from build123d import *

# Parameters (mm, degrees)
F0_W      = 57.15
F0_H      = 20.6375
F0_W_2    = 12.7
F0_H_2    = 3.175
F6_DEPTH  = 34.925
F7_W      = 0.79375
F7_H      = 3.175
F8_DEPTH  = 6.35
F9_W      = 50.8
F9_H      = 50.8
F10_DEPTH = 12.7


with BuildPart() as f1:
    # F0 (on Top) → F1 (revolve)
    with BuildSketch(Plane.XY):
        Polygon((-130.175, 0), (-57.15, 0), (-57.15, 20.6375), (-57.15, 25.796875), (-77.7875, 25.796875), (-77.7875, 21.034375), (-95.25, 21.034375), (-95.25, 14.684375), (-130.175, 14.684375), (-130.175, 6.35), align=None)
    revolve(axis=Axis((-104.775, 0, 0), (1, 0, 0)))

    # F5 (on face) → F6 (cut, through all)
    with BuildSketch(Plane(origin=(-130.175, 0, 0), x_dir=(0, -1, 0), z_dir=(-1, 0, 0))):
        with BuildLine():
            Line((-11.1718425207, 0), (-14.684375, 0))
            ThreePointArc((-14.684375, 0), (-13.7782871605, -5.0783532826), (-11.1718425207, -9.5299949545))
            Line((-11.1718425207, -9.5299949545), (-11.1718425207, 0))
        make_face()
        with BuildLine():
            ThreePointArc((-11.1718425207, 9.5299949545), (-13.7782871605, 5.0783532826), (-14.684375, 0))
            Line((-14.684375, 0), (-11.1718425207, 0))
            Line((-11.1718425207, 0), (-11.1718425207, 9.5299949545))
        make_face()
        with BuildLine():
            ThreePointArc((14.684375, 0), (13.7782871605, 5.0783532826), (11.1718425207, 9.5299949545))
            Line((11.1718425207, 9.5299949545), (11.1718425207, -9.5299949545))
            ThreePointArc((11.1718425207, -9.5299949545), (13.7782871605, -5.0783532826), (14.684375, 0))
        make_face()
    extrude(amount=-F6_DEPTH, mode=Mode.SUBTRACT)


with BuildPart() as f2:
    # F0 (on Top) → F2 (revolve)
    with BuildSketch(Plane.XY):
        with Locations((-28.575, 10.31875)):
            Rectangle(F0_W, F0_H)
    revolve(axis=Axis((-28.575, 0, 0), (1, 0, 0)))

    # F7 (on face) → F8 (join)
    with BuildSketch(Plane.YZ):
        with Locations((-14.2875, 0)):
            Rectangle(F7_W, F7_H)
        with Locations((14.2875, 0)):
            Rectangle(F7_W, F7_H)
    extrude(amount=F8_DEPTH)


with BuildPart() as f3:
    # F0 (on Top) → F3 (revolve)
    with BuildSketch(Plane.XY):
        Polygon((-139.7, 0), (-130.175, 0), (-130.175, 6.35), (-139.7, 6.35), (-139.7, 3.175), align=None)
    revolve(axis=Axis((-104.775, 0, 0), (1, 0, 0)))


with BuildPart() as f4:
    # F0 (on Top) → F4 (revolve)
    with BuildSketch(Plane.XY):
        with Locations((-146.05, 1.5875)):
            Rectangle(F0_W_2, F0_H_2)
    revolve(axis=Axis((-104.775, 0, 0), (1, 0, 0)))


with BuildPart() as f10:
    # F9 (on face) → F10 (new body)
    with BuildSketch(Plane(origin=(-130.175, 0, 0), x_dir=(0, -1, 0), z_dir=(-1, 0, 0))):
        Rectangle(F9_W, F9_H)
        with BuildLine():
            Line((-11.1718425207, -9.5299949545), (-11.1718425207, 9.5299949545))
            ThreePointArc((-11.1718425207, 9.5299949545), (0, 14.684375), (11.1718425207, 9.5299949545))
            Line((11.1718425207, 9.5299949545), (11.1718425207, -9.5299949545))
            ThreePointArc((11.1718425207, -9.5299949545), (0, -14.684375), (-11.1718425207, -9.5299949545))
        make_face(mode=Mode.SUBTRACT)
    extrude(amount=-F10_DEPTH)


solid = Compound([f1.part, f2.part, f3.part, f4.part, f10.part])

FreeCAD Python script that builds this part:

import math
import FreeCAD as App
import Part
import Sketcher
from FreeCAD import Vector
Q = App.Units.Quantity

doc = App.newDocument("Part")
body = doc.addObject("PartDesign::Body", "Body")

sketch1 = body.newObject("Sketcher::SketchObject", "Sketch")
sketch1.AttachmentSupport = (doc.getObject("XY_Plane"), [""])
sketch1.MapMode = "FlatFace"
sketch1.addGeometry(Part.LineSegment(Vector(-130.2, 0, 0), Vector(-57.1, 0, 0)), False)
sketch1.addGeometry(Part.LineSegment(Vector(-57.1, 0, 0), Vector(-57.1, 25.8, 0)), False)
sketch1.addGeometry(Part.LineSegment(Vector(-57.1, 25.8, 0), Vector(-77.8, 25.8, 0)), False)
sketch1.addGeometry(Part.LineSegment(Vector(-77.8, 25.8, 0), Vector(-77.8, 21, 0)), False)
sketch1.addGeometry(Part.LineSegment(Vector(-77.8, 21, 0), Vector(-95.2, 21, 0)), False)
sketch1.addGeometry(Part.LineSegment(Vector(-95.2, 21, 0), Vector(-95.2, 14.7, 0)), False)
sketch1.addGeometry(Part.LineSegment(Vector(-95.2, 14.7, 0), Vector(-130.2, 14.7, 0)), False)
sketch1.addGeometry(Part.LineSegment(Vector(-130.2, 14.7, 0), Vector(-130.2, 0, 0)), False)
sketch1.addConstraint(Sketcher.Constraint("Coincident", 0, 2, 1, 1))
sketch1.addConstraint(Sketcher.Constraint("Coincident", 1, 2, 2, 1))
sketch1.addConstraint(Sketcher.Constraint("Coincident", 2, 2, 3, 1))
sketch1.addConstraint(Sketcher.Constraint("Coincident", 3, 2, 4, 1))
sketch1.addConstraint(Sketcher.Constraint("Coincident", 4, 2, 5, 1))
sketch1.addConstraint(Sketcher.Constraint("Coincident", 5, 2, 6, 1))
sketch1.addConstraint(Sketcher.Constraint("Coincident", 6, 2, 7, 1))
sketch1.addConstraint(Sketcher.Constraint("Coincident", 7, 2, 0, 1))
sketch1.addConstraint(Sketcher.Constraint("Horizontal", 0))
sketch1.addConstraint(Sketcher.Constraint("Vertical", 1))
sketch1.addConstraint(Sketcher.Constraint("Horizontal", 2))
sketch1.addConstraint(Sketcher.Constraint("Vertical", 3))
sketch1.addConstraint(Sketcher.Constraint("Horizontal", 4))
sketch1.addConstraint(Sketcher.Constraint("Vertical", 5))
sketch1.addConstraint(Sketcher.Constraint("Horizontal", 6))
sketch1.addConstraint(Sketcher.Constraint("Vertical", 7))
sketch1.addConstraint(Sketcher.Constraint("PointOnObject", 0, 2, -1))
sketch1.addConstraint(Sketcher.Constraint("DistanceY", 5, 2, 5, 1, Q("0.25 in")))
sketch1.addConstraint(Sketcher.Constraint("DistanceX", 4, 2, 1, 2, Q("1.5 in")))
sketch1.addConstraint(Sketcher.Constraint("DistanceX", 0, 1, 0, 2, Q("2.875 in")))
sketch1.addConstraint(Sketcher.Constraint("DistanceX", 2, 2, 2, 1, Q("0.8125 in")))
sketch1.addConstraint(Sketcher.Constraint("DistanceY", 1, 1, 1, 2, Q("1.015625 in")))
sketch1.addConstraint(Sketcher.Constraint("DistanceY", 3, 2, 3, 1, Q("0.1875 in")))
sketch1.addConstraint(Sketcher.Constraint("DistanceX", 0, 2, -1, 1, Q("2.25 in")))
revolution = body.newObject("PartDesign::Revolution", "Revolution")
revolution.Profile = sketch1
revolution.ReferenceAxis = (sketch1, ["H_Axis"])
revolution.Angle = 360

sketch2 = body.newObject("Sketcher::SketchObject", "Sketch001")
sketch2.AttachmentSupport = (doc.getObject("YZ_Plane"), [""])
sketch2.MapMode = "FlatFace"
sketch2.AttachmentOffset = App.Placement(Vector(0, 0, -5.125 * 25.4), App.Rotation())
sketch2.addGeometry(Part.ArcOfCircle(Part.Circle(Vector(0, 0, 0), Vector(0, 0, 1), 15), math.radians(-40), math.radians(0)), False)
sketch2.addGeometry(Part.LineSegment(Vector(11, -10, 0), Vector(11, 10, 0)), False)
sketch2.addGeometry(Part.ArcOfCircle(Part.Circle(Vector(0, 0, 0), Vector(0, 0, 1), 15), math.radians(0), math.radians(40)), False)
sketch2.addGeometry(Part.ArcOfCircle(Part.Circle(Vector(0, 0, 0), Vector(0, 0, 1), 15), math.radians(140), math.radians(180)), False)
sketch2.addGeometry(Part.LineSegment(Vector(-11, 10, 0), Vector(-11, -10, 0)), False)
sketch2.addGeometry(Part.ArcOfCircle(Part.Circle(Vector(0, 0, 0), Vector(0, 0, 1), 15), math.radians(180), math.radians(220)), False)
sketch2.addConstraint(Sketcher.Constraint("Coincident", 0, 1, 1, 1))
sketch2.addConstraint(Sketcher.Constraint("Coincident", 1, 2, 2, 2))
sketch2.addConstraint(Sketcher.Constraint("Tangent", 2, 1, 0, 2))
sketch2.addConstraint(Sketcher.Constraint("Coincident", 3, 1, 4, 1))
sketch2.addConstraint(Sketcher.Constraint("Coincident", 4, 2, 5, 2))
sketch2.addConstraint(Sketcher.Constraint("Tangent", 5, 1, 3, 2))
sketch2.addConstraint(Sketcher.Constraint("Vertical", 1))
sketch2.addConstraint(Sketcher.Constraint("Vertical", 4))
sketch2.addConstraint(Sketcher.Constraint("Coincident", 0, 3, -1, 1))
sketch2.addConstraint(Sketcher.Constraint("Coincident", 3, 3, -1, 1))
sketch2.addConstraint(Sketcher.Constraint("Equal", 0, 2))
sketch2.addConstraint(Sketcher.Constraint("Equal", 2, 3))
sketch2.addConstraint(Sketcher.Constraint("Equal", 3, 5))
sketch2.addConstraint(Sketcher.Constraint("PointOnObject", 2, 1, -1))
sketch2.addConstraint(Sketcher.Constraint("PointOnObject", 5, 1, -1))
sketch2.addConstraint(Sketcher.Constraint("Horizontal", 1, 2, 3, 1))
sketch2.addConstraint(Sketcher.Constraint("Radius", 0, Q("0.578125 in")))
sketch2.addConstraint(Sketcher.Constraint("DistanceY", 1, 1, 1, 2, 19.05999))
pocket1 = body.newObject("PartDesign::Pocket", "Pocket")
pocket1.Profile = sketch2
pocket1.Length = Q("1.375 in")
pocket1.Reversed = True
body2 = doc.addObject("PartDesign::Body", "Body001")

sketch3 = body2.newObject("Sketcher::SketchObject", "Sketch002")
sketch3.AttachmentSupport = (doc.getObject("XY_Plane001"), [""])
sketch3.MapMode = "FlatFace"
sketch3.addGeometry(Part.LineSegment(Vector(-57, 21, 0), Vector(-57, 0, 0)), False)
sketch3.addGeometry(Part.LineSegment(Vector(-57, 0, 0), Vector(0, 0, 0)), False)
sketch3.addGeometry(Part.LineSegment(Vector(0, 0, 0), Vector(0, 21, 0)), False)
sketch3.addGeometry(Part.LineSegment(Vector(0, 21, 0), Vector(-57, 21, 0)), False)
sketch3.addConstraint(Sketcher.Constraint("Coincident", 0, 2, 1, 1))
sketch3.addConstraint(Sketcher.Constraint("Coincident", 1, 2, 2, 1))
sketch3.addConstraint(Sketcher.Constraint("Coincident", 2, 2, 3, 1))
sketch3.addConstraint(Sketcher.Constraint("Coincident", 3, 2, 0, 1))
sketch3.addConstraint(Sketcher.Constraint("Vertical", 0))
sketch3.addConstraint(Sketcher.Constraint("Horizontal", 1))
sketch3.addConstraint(Sketcher.Constraint("Vertical", 2))
sketch3.addConstraint(Sketcher.Constraint("Horizontal", 3))
sketch3.addConstraint(Sketcher.Constraint("Coincident", 1, 2, -1, 1))
sketch3.addConstraint(Sketcher.Constraint("DistanceX", 1, 1, 1, 2, Q("2.25 in")))
sketch3.addConstraint(Sketcher.Constraint("DistanceY", 0, 2, 0, 1, Q("0.8125 in")))
revolution2 = body2.newObject("PartDesign::Revolution", "Revolution001")
revolution2.Profile = sketch3
revolution2.ReferenceAxis = (sketch3, ["H_Axis"])
revolution2.Angle = 360

sketch4 = body2.newObject("Sketcher::SketchObject", "Sketch003")
sketch4.AttachmentSupport = (doc.getObject("YZ_Plane001"), [""])
sketch4.MapMode = "FlatFace"
sketch4.addGeometry(Part.LineSegment(Vector(-14.7, 1.6, 0), Vector(-14.7, -1.6, 0)), False)
sketch4.addGeometry(Part.LineSegment(Vector(-14.7, -1.6, 0), Vector(-13.9, -1.6, 0)), False)
sketch4.addGeometry(Part.LineSegment(Vector(-13.9, -1.6, 0), Vector(-13.9, 1.6, 0)), False)
sketch4.addGeometry(Part.LineSegment(Vector(-13.9, 1.6, 0), Vector(-14.7, 1.6, 0)), False)
sketch4.addGeometry(Part.LineSegment(Vector(13.9, 1.6, 0), Vector(13.9, -1.6, 0)), False)
sketch4.addGeometry(Part.LineSegment(Vector(13.9, -1.6, 0), Vector(14.7, -1.6, 0)), False)
sketch4.addGeometry(Part.LineSegment(Vector(14.7, -1.6, 0), Vector(14.7, 1.6, 0)), False)
sketch4.addGeometry(Part.LineSegment(Vector(14.7, 1.6, 0), Vector(13.9, 1.6, 0)), False)
sketch4.addConstraint(Sketcher.Constraint("Coincident", 0, 2, 1, 1))
sketch4.addConstraint(Sketcher.Constraint("Coincident", 1, 2, 2, 1))
sketch4.addConstraint(Sketcher.Constraint("Coincident", 2, 2, 3, 1))
sketch4.addConstraint(Sketcher.Constraint("Coincident", 3, 2, 0, 1))
sketch4.addConstraint(Sketcher.Constraint("Coincident", 4, 2, 5, 1))
sketch4.addConstraint(Sketcher.Constraint("Coincident", 5, 2, 6, 1))
sketch4.addConstraint(Sketcher.Constraint("Coincident", 6, 2, 7, 1))
sketch4.addConstraint(Sketcher.Constraint("Coincident", 7, 2, 4, 1))
sketch4.addConstraint(Sketcher.Constraint("Vertical", 0))
sketch4.addConstraint(Sketcher.Constraint("Horizontal", 1))
sketch4.addConstraint(Sketcher.Constraint("Vertical", 2))
sketch4.addConstraint(Sketcher.Constraint("Horizontal", 3))
sketch4.addConstraint(Sketcher.Constraint("Vertical", 4))
sketch4.addConstraint(Sketcher.Constraint("Horizontal", 5))
sketch4.addConstraint(Sketcher.Constraint("Vertical", 6))
sketch4.addConstraint(Sketcher.Constraint("Horizontal", 7))
sketch4.addConstraint(Sketcher.Constraint("Symmetric", 2, 2, 4, 2, -1, 1))
sketch4.addConstraint(Sketcher.Constraint("Symmetric", 0, 2, 6, 2, -1, 1))
sketch4.addConstraint(Sketcher.Constraint("Horizontal", 1, 2, 4, 2))
sketch4.addConstraint(Sketcher.Constraint("DistanceX", 1, 1, 1, 2, Q("0.03125 in")))
sketch4.addConstraint(Sketcher.Constraint("DistanceY", 0, 2, 0, 1, Q("0.125 in")))
sketch4.addConstraint(Sketcher.Constraint("DistanceX", 0, 2, -1, 1, Q("0.578125 in")))
pad1 = body2.newObject("PartDesign::Pad", "Pad")
pad1.Profile = sketch4
pad1.Length = Q("0.25 in")
body3 = doc.addObject("PartDesign::Body", "Body002")

sketch5 = body3.newObject("Sketcher::SketchObject", "Sketch004")
sketch5.AttachmentSupport = (doc.getObject("XY_Plane002"), [""])
sketch5.MapMode = "FlatFace"
sketch5.addGeometry(Part.LineSegment(Vector(-140, 0, 0), Vector(-130, 0, 0)), False)
sketch5.addGeometry(Part.LineSegment(Vector(-130, 0, 0), Vector(-130, 6, 0)), False)
sketch5.addGeometry(Part.LineSegment(Vector(-130, 6, 0), Vector(-140, 6, 0)), False)
sketch5.addGeometry(Part.LineSegment(Vector(-140, 6, 0), Vector(-140, 0, 0)), False)
sketch5.addConstraint(Sketcher.Constraint("Coincident", 0, 2, 1, 1))
sketch5.addConstraint(Sketcher.Constraint("Coincident", 1, 2, 2, 1))
sketch5.addConstraint(Sketcher.Constraint("Coincident", 2, 2, 3, 1))
sketch5.addConstraint(Sketcher.Constraint("Coincident", 3, 2, 0, 1))
sketch5.addConstraint(Sketcher.Constraint("Horizontal", 0))
sketch5.addConstraint(Sketcher.Constraint("Vertical", 1))
sketch5.addConstraint(Sketcher.Constraint("Horizontal", 2))
sketch5.addConstraint(Sketcher.Constraint("Vertical", 3))
sketch5.addConstraint(Sketcher.Constraint("PointOnObject", 0, 2, -1))
sketch5.addConstraint(Sketcher.Constraint("DistanceY", 1, 1, 1, 2, Q("0.25 in")))
sketch5.addConstraint(Sketcher.Constraint("DistanceX", 2, 2, -1, 1, Q("5.5 in")))
sketch5.addConstraint(Sketcher.Constraint("DistanceX", 0, 1, 0, 2, Q("0.375 in")))
revolution3 = body3.newObject("PartDesign::Revolution", "Revolution002")
revolution3.Profile = sketch5
revolution3.ReferenceAxis = (sketch5, ["H_Axis"])
revolution3.Angle = 360
body4 = doc.addObject("PartDesign::Body", "Body003")

sketch6 = body4.newObject("Sketcher::SketchObject", "Sketch005")
sketch6.AttachmentSupport = (doc.getObject("XY_Plane003"), [""])
sketch6.MapMode = "FlatFace"
sketch6.addGeometry(Part.LineSegment(Vector(-152.4, 3.2, 0), Vector(-152.4, 0, 0)), False)
sketch6.addGeometry(Part.LineSegment(Vector(-152.4, 0, 0), Vector(-139.7, 0, 0)), False)
sketch6.addGeometry(Part.LineSegment(Vector(-139.7, 0, 0), Vector(-139.7, 3.2, 0)), False)
sketch6.addGeometry(Part.LineSegment(Vector(-139.7, 3.2, 0), Vector(-152.4, 3.2, 0)), False)
sketch6.addConstraint(Sketcher.Constraint("Coincident", 0, 2, 1, 1))
sketch6.addConstraint(Sketcher.Constraint("Coincident", 1, 2, 2, 1))
sketch6.addConstraint(Sketcher.Constraint("Coincident", 2, 2, 3, 1))
sketch6.addConstraint(Sketcher.Constraint("Coincident", 3, 2, 0, 1))
sketch6.addConstraint(Sketcher.Constraint("Vertical", 0))
sketch6.addConstraint(Sketcher.Constraint("Horizontal", 1))
sketch6.addConstraint(Sketcher.Constraint("Vertical", 2))
sketch6.addConstraint(Sketcher.Constraint("Horizontal", 3))
sketch6.addConstraint(Sketcher.Constraint("PointOnObject", 0, 2, -1))
sketch6.addConstraint(Sketcher.Constraint("DistanceX", 1, 1, 1, 2, Q("0.5 in")))
sketch6.addConstraint(Sketcher.Constraint("DistanceX", 0, 2, -1, 1, Q("6 in")))
sketch6.addConstraint(Sketcher.Constraint("DistanceY", 0, 2, 0, 1, Q("0.125 in")))
revolution4 = body4.newObject("PartDesign::Revolution", "Revolution003")
revolution4.Profile = sketch6
revolution4.ReferenceAxis = (sketch6, ["H_Axis"])
revolution4.Angle = 360
body5 = doc.addObject("PartDesign::Body", "Body004")

sketch7 = body5.newObject("Sketcher::SketchObject", "Sketch006")
sketch7.AttachmentSupport = (doc.getObject("YZ_Plane004"), [""])
sketch7.MapMode = "FlatFace"
sketch7.AttachmentOffset = App.Placement(Vector(0, 0, -5.125 * 25.4), App.Rotation())
sketch7.addGeometry(Part.LineSegment(Vector(25, 25, 0), Vector(25, -25, 0)), False)
sketch7.addGeometry(Part.LineSegment(Vector(25, -25, 0), Vector(-25, -25, 0)), False)
sketch7.addGeometry(Part.LineSegment(Vector(-25, -25, 0), Vector(-25, 25, 0)), False)
sketch7.addGeometry(Part.LineSegment(Vector(-25, 25, 0), Vector(25, 25, 0)), False)
sketch7.addGeometry(Part.ArcOfCircle(Part.Circle(Vector(0, 0, 0), Vector(0, 0, 1), 15), math.radians(-140), math.radians(-40)), False)
sketch7.addGeometry(Part.LineSegment(Vector(11, -10, 0), Vector(11, 10, 0)), False)
sketch7.addGeometry(Part.ArcOfCircle(Part.Circle(Vector(0, 0, 0), Vector(0, 0, 1), 15), math.radians(40), math.radians(140)), False)
sketch7.addGeometry(Part.LineSegment(Vector(-11, 10, 0), Vector(-11, -10, 0)), False)
sketch7.addConstraint(Sketcher.Constraint("Coincident", 0, 2, 1, 1))
sketch7.addConstraint(Sketcher.Constraint("Coincident", 1, 2, 2, 1))
sketch7.addConstraint(Sketcher.Constraint("Coincident", 2, 2, 3, 1))
sketch7.addConstraint(Sketcher.Constraint("Coincident", 3, 2, 0, 1))
sketch7.addConstraint(Sketcher.Constraint("Coincident", 4, 2, 5, 1))
sketch7.addConstraint(Sketcher.Constraint("Coincident", 5, 2, 6, 1))
sketch7.addConstraint(Sketcher.Constraint("Coincident", 6, 2, 7, 1))
sketch7.addConstraint(Sketcher.Constraint("Coincident", 7, 2, 4, 1))
sketch7.addConstraint(Sketcher.Constraint("Vertical", 0))
sketch7.addConstraint(Sketcher.Constraint("Horizontal", 1))
sketch7.addConstraint(Sketcher.Constraint("Vertical", 2))
sketch7.addConstraint(Sketcher.Constraint("Horizontal", 3))
sketch7.addConstraint(Sketcher.Constraint("Vertical", 5))
sketch7.addConstraint(Sketcher.Constraint("Vertical", 7))
sketch7.addConstraint(Sketcher.Constraint("Coincident", 4, 3, -1, 1))
sketch7.addConstraint(Sketcher.Constraint("Coincident", 6, 3, -1, 1))
sketch7.addConstraint(Sketcher.Constraint("Equal", 4, 6))
sketch7.addConstraint(Sketcher.Constraint("Symmetric", 0, 2, 2, 2, -1, 1))
sketch7.addConstraint(Sketcher.Constraint("Horizontal", 5, 2, 6, 2))
sketch7.addConstraint(Sketcher.Constraint("Equal", 3, 0))
sketch7.addConstraint(Sketcher.Constraint("DistanceX", 1, 2, 1, 1, Q("2 in")))
sketch7.addConstraint(Sketcher.Constraint("Radius", 4, Q("0.578125 in")))
sketch7.addConstraint(Sketcher.Constraint("DistanceY", 5, 1, 5, 2, 19.05999))
pad2 = body5.newObject("PartDesign::Pad", "Pad001")
pad2.Profile = sketch7
pad2.Length = Q("0.5 in")

doc.recompute()
